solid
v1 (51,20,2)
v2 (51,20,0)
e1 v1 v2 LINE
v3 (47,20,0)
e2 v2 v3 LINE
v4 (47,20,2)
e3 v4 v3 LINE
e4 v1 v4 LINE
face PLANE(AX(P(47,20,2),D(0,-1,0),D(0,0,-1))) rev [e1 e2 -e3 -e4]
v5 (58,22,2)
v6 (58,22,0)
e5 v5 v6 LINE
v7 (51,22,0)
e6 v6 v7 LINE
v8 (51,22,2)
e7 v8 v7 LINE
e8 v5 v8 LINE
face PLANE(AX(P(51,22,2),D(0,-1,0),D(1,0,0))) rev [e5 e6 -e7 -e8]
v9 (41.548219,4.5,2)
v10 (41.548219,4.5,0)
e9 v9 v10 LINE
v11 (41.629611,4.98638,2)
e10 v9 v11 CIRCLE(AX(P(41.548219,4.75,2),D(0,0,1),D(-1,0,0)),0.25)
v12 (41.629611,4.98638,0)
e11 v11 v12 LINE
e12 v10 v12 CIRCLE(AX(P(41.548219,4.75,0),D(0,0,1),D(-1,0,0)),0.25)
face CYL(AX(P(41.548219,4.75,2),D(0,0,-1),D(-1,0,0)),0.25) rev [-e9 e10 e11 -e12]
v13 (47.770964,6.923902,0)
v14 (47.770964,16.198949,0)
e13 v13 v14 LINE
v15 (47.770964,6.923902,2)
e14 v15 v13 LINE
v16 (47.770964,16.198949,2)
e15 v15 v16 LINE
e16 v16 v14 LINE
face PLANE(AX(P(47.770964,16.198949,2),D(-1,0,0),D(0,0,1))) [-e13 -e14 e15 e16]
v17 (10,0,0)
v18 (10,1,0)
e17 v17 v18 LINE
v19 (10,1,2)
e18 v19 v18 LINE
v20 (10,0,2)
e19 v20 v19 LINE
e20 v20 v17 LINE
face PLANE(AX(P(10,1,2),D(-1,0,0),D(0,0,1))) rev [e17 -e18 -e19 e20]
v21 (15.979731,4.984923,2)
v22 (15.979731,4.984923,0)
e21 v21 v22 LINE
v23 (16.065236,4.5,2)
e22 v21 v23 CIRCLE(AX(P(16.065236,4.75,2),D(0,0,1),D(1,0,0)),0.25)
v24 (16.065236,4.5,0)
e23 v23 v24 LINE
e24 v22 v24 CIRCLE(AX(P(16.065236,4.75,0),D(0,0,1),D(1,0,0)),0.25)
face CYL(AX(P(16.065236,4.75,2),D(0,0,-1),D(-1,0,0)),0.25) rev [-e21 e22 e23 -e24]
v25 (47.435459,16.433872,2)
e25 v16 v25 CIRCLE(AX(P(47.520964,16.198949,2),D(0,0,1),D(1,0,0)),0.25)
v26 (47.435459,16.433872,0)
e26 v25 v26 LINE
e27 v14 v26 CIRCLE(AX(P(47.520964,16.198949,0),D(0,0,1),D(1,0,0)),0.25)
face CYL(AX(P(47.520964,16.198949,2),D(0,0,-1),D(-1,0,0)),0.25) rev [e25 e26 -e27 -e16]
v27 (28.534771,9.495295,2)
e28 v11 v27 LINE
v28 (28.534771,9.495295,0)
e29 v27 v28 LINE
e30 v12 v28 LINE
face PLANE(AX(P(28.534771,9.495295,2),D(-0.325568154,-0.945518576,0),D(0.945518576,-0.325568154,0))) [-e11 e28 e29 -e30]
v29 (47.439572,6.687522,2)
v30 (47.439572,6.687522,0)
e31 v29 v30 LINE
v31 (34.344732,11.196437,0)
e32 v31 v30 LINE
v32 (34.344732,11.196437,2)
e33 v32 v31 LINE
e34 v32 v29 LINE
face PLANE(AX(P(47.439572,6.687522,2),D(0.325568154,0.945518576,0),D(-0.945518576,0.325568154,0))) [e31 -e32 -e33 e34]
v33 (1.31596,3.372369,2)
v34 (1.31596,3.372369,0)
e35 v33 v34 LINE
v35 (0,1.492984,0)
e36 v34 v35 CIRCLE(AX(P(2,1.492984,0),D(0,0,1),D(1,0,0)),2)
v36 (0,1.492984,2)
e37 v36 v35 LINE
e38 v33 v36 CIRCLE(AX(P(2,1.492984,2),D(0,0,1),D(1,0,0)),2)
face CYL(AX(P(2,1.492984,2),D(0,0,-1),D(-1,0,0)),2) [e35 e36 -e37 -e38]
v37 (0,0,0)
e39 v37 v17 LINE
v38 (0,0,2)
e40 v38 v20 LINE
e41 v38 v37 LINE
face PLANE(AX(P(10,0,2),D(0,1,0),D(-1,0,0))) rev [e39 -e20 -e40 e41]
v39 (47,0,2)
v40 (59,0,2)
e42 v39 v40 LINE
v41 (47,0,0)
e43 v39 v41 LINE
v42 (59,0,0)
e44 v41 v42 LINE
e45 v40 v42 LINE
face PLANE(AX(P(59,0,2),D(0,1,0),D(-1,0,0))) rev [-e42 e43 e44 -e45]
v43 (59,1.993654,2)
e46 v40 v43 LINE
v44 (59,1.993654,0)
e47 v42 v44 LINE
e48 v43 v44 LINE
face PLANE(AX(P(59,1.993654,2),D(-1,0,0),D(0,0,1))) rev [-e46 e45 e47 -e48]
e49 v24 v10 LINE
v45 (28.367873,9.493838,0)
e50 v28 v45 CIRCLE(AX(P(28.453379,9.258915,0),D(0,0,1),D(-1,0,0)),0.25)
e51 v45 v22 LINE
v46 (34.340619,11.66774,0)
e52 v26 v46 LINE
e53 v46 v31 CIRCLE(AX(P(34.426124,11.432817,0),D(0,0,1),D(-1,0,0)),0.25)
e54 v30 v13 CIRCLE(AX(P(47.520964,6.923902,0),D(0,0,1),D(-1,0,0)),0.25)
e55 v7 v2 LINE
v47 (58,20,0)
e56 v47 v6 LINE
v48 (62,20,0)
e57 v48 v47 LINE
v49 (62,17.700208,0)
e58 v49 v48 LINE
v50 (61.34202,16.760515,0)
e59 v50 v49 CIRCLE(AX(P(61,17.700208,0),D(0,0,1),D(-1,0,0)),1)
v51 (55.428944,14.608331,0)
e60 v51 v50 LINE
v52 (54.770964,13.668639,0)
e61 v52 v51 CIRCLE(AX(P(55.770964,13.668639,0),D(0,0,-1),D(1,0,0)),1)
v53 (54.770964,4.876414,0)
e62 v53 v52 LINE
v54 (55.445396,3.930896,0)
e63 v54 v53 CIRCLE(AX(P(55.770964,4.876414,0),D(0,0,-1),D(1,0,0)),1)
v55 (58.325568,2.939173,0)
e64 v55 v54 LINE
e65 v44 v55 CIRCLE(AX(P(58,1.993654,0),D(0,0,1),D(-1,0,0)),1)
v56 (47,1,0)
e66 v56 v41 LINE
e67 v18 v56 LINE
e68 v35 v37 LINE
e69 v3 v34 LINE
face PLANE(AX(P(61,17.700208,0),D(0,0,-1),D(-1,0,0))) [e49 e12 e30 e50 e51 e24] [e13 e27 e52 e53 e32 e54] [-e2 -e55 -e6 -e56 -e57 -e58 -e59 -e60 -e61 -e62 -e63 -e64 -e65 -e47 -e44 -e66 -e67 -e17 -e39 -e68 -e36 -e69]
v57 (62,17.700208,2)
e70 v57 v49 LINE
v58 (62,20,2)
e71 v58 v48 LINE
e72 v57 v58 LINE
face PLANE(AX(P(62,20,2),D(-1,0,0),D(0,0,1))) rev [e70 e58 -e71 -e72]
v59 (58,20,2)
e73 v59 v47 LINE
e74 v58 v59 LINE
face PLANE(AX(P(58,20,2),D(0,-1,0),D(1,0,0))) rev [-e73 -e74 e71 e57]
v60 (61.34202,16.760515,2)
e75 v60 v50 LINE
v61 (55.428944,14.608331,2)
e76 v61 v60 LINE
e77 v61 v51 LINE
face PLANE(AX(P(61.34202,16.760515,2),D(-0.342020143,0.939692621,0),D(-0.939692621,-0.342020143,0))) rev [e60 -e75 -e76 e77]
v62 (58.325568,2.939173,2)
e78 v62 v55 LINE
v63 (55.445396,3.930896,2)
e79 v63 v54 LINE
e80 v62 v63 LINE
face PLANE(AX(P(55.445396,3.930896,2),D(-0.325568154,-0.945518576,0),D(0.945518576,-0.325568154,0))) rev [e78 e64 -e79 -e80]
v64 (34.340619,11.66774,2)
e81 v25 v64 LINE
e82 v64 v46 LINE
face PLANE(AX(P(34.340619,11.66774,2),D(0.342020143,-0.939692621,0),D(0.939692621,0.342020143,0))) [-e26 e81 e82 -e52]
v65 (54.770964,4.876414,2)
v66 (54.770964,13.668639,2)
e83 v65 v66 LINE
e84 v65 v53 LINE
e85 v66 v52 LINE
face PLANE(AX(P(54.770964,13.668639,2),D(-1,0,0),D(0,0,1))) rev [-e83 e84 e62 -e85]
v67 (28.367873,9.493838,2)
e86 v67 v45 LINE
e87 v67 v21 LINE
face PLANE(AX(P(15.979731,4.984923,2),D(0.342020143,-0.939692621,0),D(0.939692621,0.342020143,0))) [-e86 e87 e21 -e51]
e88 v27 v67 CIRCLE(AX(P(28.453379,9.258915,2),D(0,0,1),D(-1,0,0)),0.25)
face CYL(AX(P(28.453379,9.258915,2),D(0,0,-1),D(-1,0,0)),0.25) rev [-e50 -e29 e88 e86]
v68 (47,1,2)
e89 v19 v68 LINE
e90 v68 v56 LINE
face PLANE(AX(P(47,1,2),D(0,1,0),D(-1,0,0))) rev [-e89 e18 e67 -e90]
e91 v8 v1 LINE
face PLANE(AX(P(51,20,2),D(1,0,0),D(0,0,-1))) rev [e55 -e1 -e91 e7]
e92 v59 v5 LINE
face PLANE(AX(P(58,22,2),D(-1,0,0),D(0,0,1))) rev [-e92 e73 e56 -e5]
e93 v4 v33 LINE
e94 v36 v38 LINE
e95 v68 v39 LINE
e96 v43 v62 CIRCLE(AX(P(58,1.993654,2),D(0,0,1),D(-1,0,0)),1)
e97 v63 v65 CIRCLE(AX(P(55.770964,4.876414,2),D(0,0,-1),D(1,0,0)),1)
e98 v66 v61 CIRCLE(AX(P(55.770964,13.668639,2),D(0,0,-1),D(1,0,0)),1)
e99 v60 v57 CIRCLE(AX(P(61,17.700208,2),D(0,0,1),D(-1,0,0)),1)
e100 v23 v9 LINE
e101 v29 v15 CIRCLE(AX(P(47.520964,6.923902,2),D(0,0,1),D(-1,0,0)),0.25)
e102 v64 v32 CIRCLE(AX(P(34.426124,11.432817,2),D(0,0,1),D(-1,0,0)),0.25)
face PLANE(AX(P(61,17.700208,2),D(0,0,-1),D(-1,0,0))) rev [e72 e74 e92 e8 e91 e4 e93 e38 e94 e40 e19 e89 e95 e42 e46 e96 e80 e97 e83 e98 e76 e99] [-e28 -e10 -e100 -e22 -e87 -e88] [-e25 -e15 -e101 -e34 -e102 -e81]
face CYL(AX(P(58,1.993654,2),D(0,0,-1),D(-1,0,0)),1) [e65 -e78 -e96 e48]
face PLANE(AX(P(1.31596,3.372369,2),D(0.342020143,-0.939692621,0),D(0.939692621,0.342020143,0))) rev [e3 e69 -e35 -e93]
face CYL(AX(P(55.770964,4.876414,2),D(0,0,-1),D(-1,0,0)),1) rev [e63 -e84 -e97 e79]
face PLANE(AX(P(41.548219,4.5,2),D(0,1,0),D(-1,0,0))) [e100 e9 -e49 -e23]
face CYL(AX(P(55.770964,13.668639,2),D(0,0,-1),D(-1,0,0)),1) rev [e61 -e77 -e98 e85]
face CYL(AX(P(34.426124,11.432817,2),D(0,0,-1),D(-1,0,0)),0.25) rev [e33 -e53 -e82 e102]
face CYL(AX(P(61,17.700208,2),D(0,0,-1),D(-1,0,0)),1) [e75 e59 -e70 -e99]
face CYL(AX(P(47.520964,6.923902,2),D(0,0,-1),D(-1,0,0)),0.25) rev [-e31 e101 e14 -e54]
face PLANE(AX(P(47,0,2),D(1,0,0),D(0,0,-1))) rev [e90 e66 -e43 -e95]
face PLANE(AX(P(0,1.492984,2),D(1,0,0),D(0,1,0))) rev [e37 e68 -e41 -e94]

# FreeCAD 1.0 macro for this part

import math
import FreeCAD as App
import Part
import Sketcher
Q = App.Units.Quantity

doc = App.newDocument("Part")
body = doc.addObject("PartDesign::Body", "Body")

sketch1 = body.newObject("Sketcher::SketchObject", "Sketch")
sketch1.AttachmentSupport = (doc.getObject("XY_Plane"), [""])
sketch1.MapMode = "FlatFace"
sketch1.addGeometry(Part.LineSegment(App.Vector(47, 20, 0), App.Vector(1.32, 3.37, 0)), False)
sketch1.addGeometry(Part.ArcOfCircle(Part.Circle(App.Vector(2, 1.49, 0), App.Vector(0, 0, 1), 2), math.radians(110), math.radians(180)), False)
sketch1.addGeometry(Part.LineSegment(App.Vector(0, 1.49, 0), App.Vector(0, 0, 0)), False)
sketch1.addGeometry(Part.LineSegment(App.Vector(0, 0, 0), App.Vector(10, 0, 0)), False)
sketch1.addGeometry(Part.LineSegment(App.Vector(10, 0, 0), App.Vector(10, 1, 0)), False)
sketch1.addGeometry(Part.LineSegment(App.Vector(10, 1, 0), App.Vector(47, 1, 0)), False)
sketch1.addGeometry(Part.LineSegment(App.Vector(47, 1, 0), App.Vector(47, 0, 0)), False)
sketch1.addGeometry(Part.LineSegment(App.Vector(47, 0, 0), App.Vector(59, 0, 0)), False)
sketch1.addGeometry(Part.LineSegment(App.Vector(59, 0, 0), App.Vector(59, 1.99, 0)), False)
sketch1.addGeometry(Part.ArcOfCircle(Part.Circle(App.Vector(58, 1.99, 0), App.Vector(0, 0, 1), 1), math.radians(0), math.radians(71)), False)
sketch1.addGeometry(Part.LineSegment(App.Vector(58.33, 2.94, 0), App.Vector(55.45, 3.93, 0)), False)
sketch1.addGeometry(Part.ArcOfCircle(Part.Circle(App.Vector(55.77, 4.88, 0), App.Vector(0, 0, 1), 1), math.radians(180), math.radians(251)), False)
sketch1.addGeometry(Part.LineSegment(App.Vector(54.77, 4.88, 0), App.Vector(54.77, 13.67, 0)), False)
sketch1.addGeometry(Part.ArcOfCircle(Part.Circle(App.Vector(55.77, 13.67, 0), App.Vector(0, 0, 1), 1), math.radians(110), math.radians(180)), False)
sketch1.addGeometry(Part.LineSegment(App.Vector(55.43, 14.61, 0), App.Vector(61.34, 16.76, 0)), False)
sketch1.addGeometry(Part.ArcOfCircle(Part.Circle(App.Vector(61, 17.7, 0), App.Vector(0, 0, 1), 1), math.radians(-70), math.radians(0)), False)
sketch1.addGeometry(Part.LineSegment(App.Vector(62, 17.7, 0), App.Vector(62, 20, 0)), False)
sketch1.addGeometry(Part.LineSegment(App.Vector(62, 20, 0), App.Vector(58, 20, 0)), False)
sketch1.addGeometry(Part.LineSegment(App.Vector(58, 20, 0), App.Vector(58, 22, 0)), False)
sketch1.addGeometry(Part.LineSegment(App.Vector(58, 22, 0), App.Vector(51, 22, 0)), False)
sketch1.addGeometry(Part.LineSegment(App.Vector(51, 22, 0), App.Vector(51, 20, 0)), False)
sketch1.addGeometry(Part.LineSegment(App.Vector(51, 20, 0), App.Vector(47, 20, 0)), False)
sketch1.addGeometry(Part.LineSegment(App.Vector(15.98, 4.98, 0), App.Vector(28.37, 9.49, 0)), False)
sketch1.addGeometry(Part.ArcOfCircle(Part.Circle(App.Vector(28.45, 9.26, 0), App.Vector(0, 0, 1), 0.25), math.radians(71), math.radians(110)), False)
sketch1.addGeometry(Part.LineSegment(App.Vector(28.53, 9.5, 0), App.Vector(41.63, 4.99, 0)), False)
sketch1.addGeometry(Part.ArcOfCircle(Part.Circle(App.Vector(41.55, 4.75, 0), App.Vector(0, 0, 1), 0.25), math.radians(-90), math.radians(71)), False)
sketch1.addGeometry(Part.LineSegment(App.Vector(41.55, 4.5, 0), App.Vector(16.07, 4.5, 0)), False)
sketch1.addGeometry(Part.ArcOfCircle(Part.Circle(App.Vector(16.07, 4.75, 0), App.Vector(0, 0, 1), 0.25), math.radians(110), math.radians(270)), False)
sketch1.addGeometry(Part.LineSegment(App.Vector(47.77, 16.2, 0), App.Vector(47.77, 6.92, 0)), False)
sketch1.addGeometry(Part.ArcOfCircle(Part.Circle(App.Vector(47.52, 6.92, 0), App.Vector(0, 0, 1), 0.25), math.radians(-109), math.radians(0)), False)
sketch1.addGeometry(Part.LineSegment(App.Vector(47.44, 6.69, 0), App.Vector(34.34, 11.2, 0)), False)
sketch1.addGeometry(Part.ArcOfCircle(Part.Circle(App.Vector(34.43, 11.43, 0), App.Vector(0, 0, 1), 0.25), math.radians(110), math.radians(251)), False)
sketch1.addGeometry(Part.LineSegment(App.Vector(34.34, 11.67, 0), App.Vector(47.44, 16.43, 0)), False)
sketch1.addGeometry(Part.ArcOfCircle(Part.Circle(App.Vector(47.52, 16.2, 0), App.Vector(0, 0, 1), 0.25), math.radians(0), math.radians(110)), False)
sketch1.addConstraint(Sketcher.Constraint("Tangent", 0, 2, 1, 1))
sketch1.addConstraint(Sketcher.Constraint("Tangent", 1, 2, 2, 1))
sketch1.addConstraint(Sketcher.Constraint("Coincident", 2, 2, 3, 1))
sketch1.addConstraint(Sketcher.Constraint("Coincident", 3, 2, 4, 1))
sketch1.addConstraint(Sketcher.Constraint("Coincident", 4, 2, 5, 1))
sketch1.addConstraint(Sketcher.Constraint("Coincident", 5, 2, 6, 1))
sketch1.addConstraint(Sketcher.Constraint("Coincident", 6, 2, 7, 1))
sketch1.addConstraint(Sketcher.Constraint("Coincident", 7, 2, 8, 1))
sketch1.addConstraint(Sketcher.Constraint("Tangent", 8, 2, 9, 1))
sketch1.addConstraint(Sketcher.Constraint("Tangent", 9, 2, 10, 1))
sketch1.addConstraint(Sketcher.Constraint("Tangent", 10, 2, 11, 2))
sketch1.addConstraint(Sketcher.Constraint("Tangent", 11, 1, 12, 1))
sketch1.addConstraint(Sketcher.Constraint("Tangent", 12, 2, 13, 2))
sketch1.addConstraint(Sketcher.Constraint("Tangent", 13, 1, 14, 1))
sketch1.addConstraint(Sketcher.Constraint("Tangent", 14, 2, 15, 1))
sketch1.addConstraint(Sketcher.Constraint("Tangent", 15, 2, 16, 1))
sketch1.addConstraint(Sketcher.Constraint("Coincident", 16, 2, 17, 1))
sketch1.addConstraint(Sketcher.Constraint("Coincident", 17, 2, 18, 1))
sketch1.addConstraint(Sketcher.Constraint("Coincident", 18, 2, 19, 1))
sketch1.addConstraint(Sketcher.Constraint("Coincident", 19, 2, 20, 1))
sketch1.addConstraint(Sketcher.Constraint("Coincident", 20, 2, 21, 1))
sketch1.addConstraint(Sketcher.Constraint("Coincident", 21, 2, 0, 1))
sketch1.addConstraint(Sketcher.Constraint("Tangent", 22, 2, 23, 2))
sketch1.addConstraint(Sketcher.Constraint("Tangent", 23, 1, 24, 1))
sketch1.addConstraint(Sketcher.Constraint("Tangent", 24, 2, 25, 2))
sketch1.addConstraint(Sketcher.Constraint("Tangent", 25, 1, 26, 1))
sketch1.addConstraint(Sketcher.Constraint("Tangent", 26, 2, 27, 2))
sketch1.addConstraint(Sketcher.Constraint("Tangent", 27, 1, 22, 1))
sketch1.addConstraint(Sketcher.Constraint("Tangent", 28, 2, 29, 2))
sketch1.addConstraint(Sketcher.Constraint("Tangent", 29, 1, 30, 1))
sketch1.addConstraint(Sketcher.Constraint("Tangent", 30, 2, 31, 2))
sketch1.addConstraint(Sketcher.Constraint("Tangent", 31, 1, 32, 1))
sketch1.addConstraint(Sketcher.Constraint("Tangent", 32, 2, 33, 2))
sketch1.addConstraint(Sketcher.Constraint("Tangent", 33, 1, 28, 1))
sketch1.addConstraint(Sketcher.Constraint("Vertical", 2))
sketch1.addConstraint(Sketcher.Constraint("Horizontal", 3))
sketch1.addConstraint(Sketcher.Constraint("Vertical", 4))
sketch1.addConstraint(Sketcher.Constraint("Horizontal", 5))
sketch1.addConstraint(Sketcher.Constraint("Vertical", 6))
sketch1.addConstraint(Sketcher.Constraint("Horizontal", 7))
sketch1.addConstraint(Sketcher.Constraint("Vertical", 8))
sketch1.addConstraint(Sketcher.Constraint("Vertical", 12))
sketch1.addConstraint(Sketcher.Constraint("Vertical", 16))
sketch1.addConstraint(Sketcher.Constraint("Horizontal", 17))
sketch1.addConstraint(Sketcher.Constraint("Vertical", 18))
sketch1.addConstraint(Sketcher.Constraint("Horizontal", 19))
sketch1.addConstraint(Sketcher.Constraint("Vertical", 20))
sketch1.addConstraint(Sketcher.Constraint("Horizontal", 21))
sketch1.addConstraint(Sketcher.Constraint("Horizontal", 26))
sketch1.addConstraint(Sketcher.Constraint("Vertical", 28))
sketch1.addConstraint(Sketcher.Constraint("Coincident", 2, 2, -1, 1))
sketch1.addConstraint(Sketcher.Constraint("Equal", 9, 11))
sketch1.addConstraint(Sketcher.Constraint("Equal", 11, 13))
sketch1.addConstraint(Sketcher.Constraint("Equal", 13, 15))
sketch1.addConstraint(Sketcher.Constraint("Equal", 23, 25))
sketch1.addConstraint(Sketcher.Constraint("Equal", 25, 27))
sketch1.addConstraint(Sketcher.Constraint("Equal", 27, 29))
sketch1.addConstraint(Sketcher.Constraint("Equal", 29, 31))
sketch1.addConstraint(Sketcher.Constraint("Equal", 31, 33))
sketch1.addConstraint(Sketcher.Constraint("PointOnObject", 6, 2, -1))
sketch1.addConstraint(Sketcher.Constraint("Parallel", 0, 14))
sketch1.addConstraint(Sketcher.Constraint("Parallel", 14, 22))
sketch1.addConstraint(Sketcher.Constraint("Parallel", 10, 24))
sketch1.addConstraint(Sketcher.Constraint("Parallel", 24, 30))
sketch1.addConstraint(Sketcher.Constraint("Parallel", 22, 32))
sketch1.addConstraint(Sketcher.Constraint("Horizontal", 17, 2, 20, 2))
sketch1.addConstraint(Sketcher.Constraint("Vertical", 9, 3, 17, 2))
sketch1.addConstraint(Sketcher.Constraint("Vertical", 6, 2, 21, 2))
sketch1.addConstraint(Sketcher.Constraint("Equal", 17, 21))
sketch1.addConstraint(Sketcher.Constraint("Equal", 24, 30))
sketch1.addConstraint(Sketcher.Constraint("Radius", 1, Q("2 mm")))
sketch1.addConstraint(Sketcher.Constraint("Radius", 9, Q("1 mm")))
sketch1.addConstraint(Sketcher.Constraint("DistanceX", 3, 1, 3, 2, Q("10 mm")))
sketch1.addConstraint(Sketcher.Constraint("DistanceX", 5, 1, 5, 2, Q("37 mm")))
sketch1.addConstraint(Sketcher.Constraint("DistanceX", 7, 1, 7, 2, Q("12 mm")))
sketch1.addConstraint(Sketcher.Constraint("DistanceX", 17, 2, 17, 1, Q("4 mm")))
sketch1.addConstraint(Sketcher.Constraint("DistanceY", 4, 1, 4, 2, Q("1 mm")))
sketch1.addConstraint(Sketcher.Constraint("DistanceY", 18, 1, 18, 2, Q("2 mm")))
sketch1.addConstraint(Sketcher.Constraint("Angle", 0, Q("-160 deg")))
sketch1.addConstraint(Sketcher.Constraint("Angle", 10, Q("161 deg")))
sketch1.addConstraint(Sketcher.Constraint("Radius", 23, Q("0.25 mm")))
sketch1.addConstraint(Sketcher.Constraint("DistanceY", -1, 1, 16, 2, Q("20 mm")))
sketch1.addConstraint(Sketcher.Constraint("DistanceY", -1, 1, 25, 1, Q("4.5 mm")))
sketch1.addConstraint(Sketcher.Constraint("DistanceX", 29, 3, 11, 3, Q("8.25 mm")))
sketch1.addConstraint(Sketcher.Constraint("DistanceY", -1, 1, 29, 3, Q("6.923902 mm")))
sketch1.addConstraint(Sketcher.Constraint("DistanceY", 11, 3, 23, 3, Q("4.382501 mm")))
sketch1.addConstraint(Sketcher.Constraint("DistanceY", 11, 3, 14, 2, Q("11.884101 mm")))
sketch1.addConstraint(Sketcher.Constraint("Distance", 10, Q("3.046129 mm")))
sketch1.addConstraint(Sketcher.Constraint("Distance", 32, Q("13.935238 mm")))
sketch1.addConstraint(Sketcher.Constraint("DistanceX", -1, 1, 23, 3, Q("28.453379 mm")))
pad1 = body.newObject("PartDesign::Pad", "Pad")
pad1.Profile = sketch1
pad1.Length = 2

doc.recompute()
